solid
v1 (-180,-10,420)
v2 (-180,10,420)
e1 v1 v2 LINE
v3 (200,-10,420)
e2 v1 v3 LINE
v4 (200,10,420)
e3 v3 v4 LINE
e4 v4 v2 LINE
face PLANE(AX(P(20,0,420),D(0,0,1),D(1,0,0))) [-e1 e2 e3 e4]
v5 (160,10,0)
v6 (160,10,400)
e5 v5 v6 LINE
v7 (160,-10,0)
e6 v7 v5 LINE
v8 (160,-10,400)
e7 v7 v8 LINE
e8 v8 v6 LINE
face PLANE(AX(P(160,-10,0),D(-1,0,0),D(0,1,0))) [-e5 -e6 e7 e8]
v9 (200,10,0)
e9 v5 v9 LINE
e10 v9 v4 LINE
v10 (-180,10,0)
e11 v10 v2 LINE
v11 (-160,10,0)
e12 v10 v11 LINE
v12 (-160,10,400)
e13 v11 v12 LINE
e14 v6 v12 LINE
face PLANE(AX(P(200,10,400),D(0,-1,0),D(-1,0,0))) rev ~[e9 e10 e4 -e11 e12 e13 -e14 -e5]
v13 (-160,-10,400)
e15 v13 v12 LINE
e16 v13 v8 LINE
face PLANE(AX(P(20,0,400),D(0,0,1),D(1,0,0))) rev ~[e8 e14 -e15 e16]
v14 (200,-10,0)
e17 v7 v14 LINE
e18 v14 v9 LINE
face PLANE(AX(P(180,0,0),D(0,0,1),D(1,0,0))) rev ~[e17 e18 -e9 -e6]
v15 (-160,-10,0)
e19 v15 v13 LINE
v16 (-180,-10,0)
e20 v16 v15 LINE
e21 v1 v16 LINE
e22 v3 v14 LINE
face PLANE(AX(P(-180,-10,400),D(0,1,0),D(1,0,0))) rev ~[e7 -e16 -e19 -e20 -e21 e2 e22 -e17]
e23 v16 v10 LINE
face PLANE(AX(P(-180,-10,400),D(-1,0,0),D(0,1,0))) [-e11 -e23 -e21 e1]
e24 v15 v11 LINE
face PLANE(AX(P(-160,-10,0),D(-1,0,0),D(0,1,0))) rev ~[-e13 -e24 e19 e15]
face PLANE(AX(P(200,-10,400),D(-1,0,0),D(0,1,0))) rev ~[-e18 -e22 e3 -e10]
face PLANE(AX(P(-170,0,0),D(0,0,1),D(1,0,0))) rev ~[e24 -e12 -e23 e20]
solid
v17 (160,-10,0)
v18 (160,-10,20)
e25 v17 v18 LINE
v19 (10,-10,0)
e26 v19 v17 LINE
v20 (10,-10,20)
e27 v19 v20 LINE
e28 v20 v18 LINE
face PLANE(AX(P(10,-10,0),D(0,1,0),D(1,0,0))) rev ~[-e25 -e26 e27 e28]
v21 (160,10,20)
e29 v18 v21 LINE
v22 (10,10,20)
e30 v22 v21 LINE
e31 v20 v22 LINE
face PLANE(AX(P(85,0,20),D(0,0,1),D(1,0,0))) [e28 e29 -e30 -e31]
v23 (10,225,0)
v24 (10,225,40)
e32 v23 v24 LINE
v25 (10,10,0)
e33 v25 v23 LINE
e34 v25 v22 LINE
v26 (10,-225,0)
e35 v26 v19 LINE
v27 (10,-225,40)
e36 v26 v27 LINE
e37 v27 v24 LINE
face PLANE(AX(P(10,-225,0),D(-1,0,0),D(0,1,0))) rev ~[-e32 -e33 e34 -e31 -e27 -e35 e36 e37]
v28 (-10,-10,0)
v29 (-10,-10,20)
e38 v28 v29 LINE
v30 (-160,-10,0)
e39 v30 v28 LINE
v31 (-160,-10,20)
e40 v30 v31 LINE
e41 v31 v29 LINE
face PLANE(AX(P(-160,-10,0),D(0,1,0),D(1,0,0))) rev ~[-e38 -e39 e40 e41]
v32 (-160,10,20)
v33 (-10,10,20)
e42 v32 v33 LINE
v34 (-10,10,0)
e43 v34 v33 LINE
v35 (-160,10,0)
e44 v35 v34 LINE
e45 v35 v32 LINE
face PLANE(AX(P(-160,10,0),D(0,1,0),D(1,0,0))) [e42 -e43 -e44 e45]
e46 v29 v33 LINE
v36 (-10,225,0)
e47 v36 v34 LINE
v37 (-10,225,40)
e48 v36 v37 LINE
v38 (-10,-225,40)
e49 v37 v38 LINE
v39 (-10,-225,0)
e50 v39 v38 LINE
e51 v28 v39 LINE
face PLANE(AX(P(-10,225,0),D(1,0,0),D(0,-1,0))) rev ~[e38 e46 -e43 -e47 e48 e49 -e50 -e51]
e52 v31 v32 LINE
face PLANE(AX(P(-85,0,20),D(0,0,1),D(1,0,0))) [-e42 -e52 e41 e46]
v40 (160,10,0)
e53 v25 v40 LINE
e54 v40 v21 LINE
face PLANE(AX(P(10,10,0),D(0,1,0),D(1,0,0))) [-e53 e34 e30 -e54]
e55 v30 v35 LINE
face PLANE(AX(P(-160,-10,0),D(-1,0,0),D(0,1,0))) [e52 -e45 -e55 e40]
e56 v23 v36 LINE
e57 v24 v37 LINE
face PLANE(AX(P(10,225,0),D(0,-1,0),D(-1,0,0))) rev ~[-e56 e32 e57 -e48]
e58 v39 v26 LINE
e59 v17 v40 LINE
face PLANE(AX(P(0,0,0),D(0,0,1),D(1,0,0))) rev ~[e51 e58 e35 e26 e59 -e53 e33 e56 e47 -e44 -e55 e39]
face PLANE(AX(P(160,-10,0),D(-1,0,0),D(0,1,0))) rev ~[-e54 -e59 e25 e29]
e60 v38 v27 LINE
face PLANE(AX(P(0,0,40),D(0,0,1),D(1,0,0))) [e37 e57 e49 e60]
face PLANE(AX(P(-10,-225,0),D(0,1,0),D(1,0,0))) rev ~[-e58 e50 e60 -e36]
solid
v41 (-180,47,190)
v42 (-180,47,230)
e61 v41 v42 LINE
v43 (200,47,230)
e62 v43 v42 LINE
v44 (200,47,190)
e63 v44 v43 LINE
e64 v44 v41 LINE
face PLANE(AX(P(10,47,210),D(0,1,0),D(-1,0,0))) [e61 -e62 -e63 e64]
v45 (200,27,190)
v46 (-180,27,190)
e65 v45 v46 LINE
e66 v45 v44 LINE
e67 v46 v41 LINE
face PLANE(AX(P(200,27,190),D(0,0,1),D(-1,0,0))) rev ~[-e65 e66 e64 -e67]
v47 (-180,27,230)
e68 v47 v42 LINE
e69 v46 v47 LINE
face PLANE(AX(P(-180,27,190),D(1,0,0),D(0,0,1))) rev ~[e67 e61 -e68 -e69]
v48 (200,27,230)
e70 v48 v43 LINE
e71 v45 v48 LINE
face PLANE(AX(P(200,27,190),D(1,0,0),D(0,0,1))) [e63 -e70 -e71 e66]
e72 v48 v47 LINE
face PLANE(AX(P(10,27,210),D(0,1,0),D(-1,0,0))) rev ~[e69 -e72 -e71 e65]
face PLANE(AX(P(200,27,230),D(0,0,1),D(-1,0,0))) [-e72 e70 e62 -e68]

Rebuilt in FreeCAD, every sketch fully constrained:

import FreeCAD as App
import Part
import Sketcher
from FreeCAD import Vector
Q = App.Units.Quantity


def add_polygon(sketch, points):
    """Adds a closed chain of lines whose ends are joined by coincident constraints."""
    first, n = sketch.GeometryCount, len(points)
    for a, b in zip(points, points[1:] + points[:1]):
        sketch.addGeometry(Part.LineSegment(App.Vector(*a, 0), App.Vector(*b, 0)), False)
    for i in range(n):
        sketch.addConstraint(Sketcher.Constraint("Coincident", first + i, 2, first + (i + 1) % n, 1))

doc = App.newDocument("Part")
body = doc.addObject("PartDesign::Body", "Body")

# Sketch on XY plane
sketch1 = body.newObject("Sketcher::SketchObject", "Sketch")
sketch1.AttachmentSupport = (doc.getObject("XY_Plane"), [""])
sketch1.MapMode = "FlatFace"
add_polygon(sketch1, [(-10, -225), (10, -225), (10, 225), (-10, 225)])  # lines 0-3
sketch1.addConstraint(Sketcher.Constraint("Horizontal", 0))
sketch1.addConstraint(Sketcher.Constraint("Vertical", 1))
sketch1.addConstraint(Sketcher.Constraint("Horizontal", 2))
sketch1.addConstraint(Sketcher.Constraint("Vertical", 3))
sketch1.addConstraint(Sketcher.Constraint("Symmetric", 0, 2, 2, 2, -1, 1))
sketch1.addConstraint(Sketcher.Constraint("DistanceX", 0, 1, 0, 2, Q("20 mm")))
sketch1.addConstraint(Sketcher.Constraint("DistanceY", 1, 1, 1, 2, Q("450 mm")))
pad1 = body.newObject("PartDesign::Pad", "Pad")
pad1.Profile = sketch1
pad1.Length = 40

# Sketch on XY plane
sketch2 = body.newObject("Sketcher::SketchObject", "Sketch001")
sketch2.AttachmentSupport = (doc.getObject("XY_Plane"), [""])
sketch2.MapMode = "FlatFace"
add_polygon(sketch2, [(-160, 10), (-160, -10), (-10, -10), (-10, 10)])  # lines 0-3
add_polygon(sketch2, [(10, 10), (10, -10), (160, -10), (160, 10)])  # lines 4-7
sketch2.addConstraint(Sketcher.Constraint("Vertical", 0))
sketch2.addConstraint(Sketcher.Constraint("Horizontal", 1))
sketch2.addConstraint(Sketcher.Constraint("Vertical", 2))
sketch2.addConstraint(Sketcher.Constraint("Horizontal", 3))
sketch2.addConstraint(Sketcher.Constraint("Vertical", 4))
sketch2.addConstraint(Sketcher.Constraint("Horizontal", 5))
sketch2.addConstraint(Sketcher.Constraint("Vertical", 6))
sketch2.addConstraint(Sketcher.Constraint("Horizontal", 7))
sketch2.addConstraint(Sketcher.Constraint("Symmetric", 2, 2, 4, 2, -1, 1))
sketch2.addConstraint(Sketcher.Constraint("Symmetric", 0, 2, 6, 2, -1, 1))
sketch2.addConstraint(Sketcher.Constraint("Horizontal", 1, 2, 4, 2))
sketch2.addConstraint(Sketcher.Constraint("DistanceX", 1, 1, 1, 2, Q("150 mm")))
sketch2.addConstraint(Sketcher.Constraint("DistanceY", 0, 2, 0, 1, Q("20 mm")))
sketch2.addConstraint(Sketcher.Constraint("DistanceX", 0, 2, -1, 1, Q("160 mm")))
pad2 = body.newObject("PartDesign::Pad", "Pad001")
pad2.Profile = sketch2
pad2.Length = 20
body2 = doc.addObject("PartDesign::Body", "Body001")

# Sketch on XY plane
sketch3 = body2.newObject("Sketcher::SketchObject", "Sketch002")
sketch3.AttachmentSupport = (doc.getObject("XY_Plane001"), [""])
sketch3.MapMode = "FlatFace"
add_polygon(sketch3, [(-180, 10), (-180, -10), (-160, -10), (-160, 10)])  # lines 0-3
sketch3.addConstraint(Sketcher.Constraint("Vertical", 0))
sketch3.addConstraint(Sketcher.Constraint("Horizontal", 1))
sketch3.addConstraint(Sketcher.Constraint("Vertical", 2))
sketch3.addConstraint(Sketcher.Constraint("Horizontal", 3))
sketch3.addConstraint(Sketcher.Constraint("Equal", 3, 0))
sketch3.addConstraint(Sketcher.Constraint("DistanceX", 1, 1, 1, 2, Q("20 mm")))
sketch3.addConstraint(Sketcher.Constraint("DistanceX", 0, 2, -1, 1, Q("180 mm")))
sketch3.addConstraint(Sketcher.Constraint("DistanceY", 0, 2, -1, 1, Q("10 mm")))
pad3 = body2.newObject("PartDesign::Pad", "Pad002")
pad3.Profile = sketch3
pad3.Length = 400
body3 = doc.addObject("PartDesign::Body", "Body002")

# Sketch on XY plane
sketch4 = body3.newObject("Sketcher::SketchObject", "Sketch003")
sketch4.AttachmentSupport = (doc.getObject("XY_Plane002"), [""])
sketch4.MapMode = "FlatFace"
add_polygon(sketch4, [(160, 10), (160, -10), (200, -10), (200, 10)])  # lines 0-3
sketch4.addConstraint(Sketcher.Constraint("Vertical", 0))
sketch4.addConstraint(Sketcher.Constraint("Horizontal", 1))
sketch4.addConstraint(Sketcher.Constraint("Vertical", 2))
sketch4.addConstraint(Sketcher.Constraint("Horizontal", 3))
sketch4.addConstraint(Sketcher.Constraint("DistanceX", 1, 1, 1, 2, Q("40 mm")))
sketch4.addConstraint(Sketcher.Constraint("DistanceY", 0, 2, 0, 1, Q("20 mm")))
sketch4.addConstraint(Sketcher.Constraint("DistanceX", -1, 1, 0, 2, Q("160 mm")))
sketch4.addConstraint(Sketcher.Constraint("DistanceY", 0, 2, -1, 1, Q("10 mm")))
pad4 = body3.newObject("PartDesign::Pad", "Pad003")
pad4.Profile = sketch4
pad4.Length = 400
body2.AllowCompound = True
doc.recompute()

boolean = body2.newObject("PartDesign::Boolean", "Boolean")
boolean.Type = "Fuse"
boolean.addObjects([body3])

# Sketch on XY plane
sketch5 = body2.newObject("Sketcher::SketchObject", "Sketch004")
sketch5.AttachmentSupport = (doc.getObject("XY_Plane001"), [""])
sketch5.MapMode = "FlatFace"
sketch5.AttachmentOffset = App.Placement(Vector(0, 0, 400), App.Rotation())
add_polygon(sketch5, [(200, -10), (200, 10), (-180, 10), (-180, -10)])  # lines 0-3
sketch5.addConstraint(Sketcher.Constraint("Vertical", 0))
sketch5.addConstraint(Sketcher.Constraint("Horizontal", 1))
sketch5.addConstraint(Sketcher.Constraint("Vertical", 2))
sketch5.addConstraint(Sketcher.Constraint("Horizontal", 3))
sketch5.addConstraint(Sketcher.Constraint("DistanceX", 1, 2, 1, 1, Q("380 mm")))
sketch5.addConstraint(Sketcher.Constraint("DistanceY", 0, 1, 0, 2, Q("20 mm")))
sketch5.addConstraint(Sketcher.Constraint("DistanceX", -1, 1, 0, 2, Q("200 mm")))
sketch5.addConstraint(Sketcher.Constraint("DistanceY", -1, 1, 0, 2, Q("10 mm")))
pad5 = body2.newObject("PartDesign::Pad", "Pad004")
pad5.Profile = sketch5
pad5.Length = 20
body4 = doc.addObject("PartDesign::Body", "Body003")

# Sketch on XZ plane
sketch6 = body4.newObject("Sketcher::SketchObject", "Sketch005")
sketch6.AttachmentSupport = (doc.getObject("XZ_Plane003"), [""])
sketch6.MapMode = "FlatFace"
sketch6.AttachmentOffset = App.Placement(Vector(0, 0, -27), App.Rotation())
add_polygon(sketch6, [(200, 230), (200, 190), (-180, 190), (-180, 230)])  # lines 0-3
sketch6.addConstraint(Sketcher.Constraint("Vertical", 0))
sketch6.addConstraint(Sketcher.Constraint("Horizontal", 1))
sketch6.addConstraint(Sketcher.Constraint("Vertical", 2))
sketch6.addConstraint(Sketcher.Constraint("Horizontal", 3))
sketch6.addConstraint(Sketcher.Constraint("DistanceX", 1, 2, 1, 1, Q("380 mm")))
sketch6.addConstraint(Sketcher.Constraint("DistanceY", 0, 2, 0, 1, Q("40 mm")))
sketch6.addConstraint(Sketcher.Constraint("DistanceX", -1, 1, 0, 2, Q("200 mm")))
sketch6.addConstraint(Sketcher.Constraint("DistanceY", -1, 1, 0, 2, Q("190 mm")))
pad6 = body4.newObject("PartDesign::Pad", "Pad005")
pad6.Profile = sketch6
pad6.Length = 20
pad6.Reversed = True

doc.recompute()
